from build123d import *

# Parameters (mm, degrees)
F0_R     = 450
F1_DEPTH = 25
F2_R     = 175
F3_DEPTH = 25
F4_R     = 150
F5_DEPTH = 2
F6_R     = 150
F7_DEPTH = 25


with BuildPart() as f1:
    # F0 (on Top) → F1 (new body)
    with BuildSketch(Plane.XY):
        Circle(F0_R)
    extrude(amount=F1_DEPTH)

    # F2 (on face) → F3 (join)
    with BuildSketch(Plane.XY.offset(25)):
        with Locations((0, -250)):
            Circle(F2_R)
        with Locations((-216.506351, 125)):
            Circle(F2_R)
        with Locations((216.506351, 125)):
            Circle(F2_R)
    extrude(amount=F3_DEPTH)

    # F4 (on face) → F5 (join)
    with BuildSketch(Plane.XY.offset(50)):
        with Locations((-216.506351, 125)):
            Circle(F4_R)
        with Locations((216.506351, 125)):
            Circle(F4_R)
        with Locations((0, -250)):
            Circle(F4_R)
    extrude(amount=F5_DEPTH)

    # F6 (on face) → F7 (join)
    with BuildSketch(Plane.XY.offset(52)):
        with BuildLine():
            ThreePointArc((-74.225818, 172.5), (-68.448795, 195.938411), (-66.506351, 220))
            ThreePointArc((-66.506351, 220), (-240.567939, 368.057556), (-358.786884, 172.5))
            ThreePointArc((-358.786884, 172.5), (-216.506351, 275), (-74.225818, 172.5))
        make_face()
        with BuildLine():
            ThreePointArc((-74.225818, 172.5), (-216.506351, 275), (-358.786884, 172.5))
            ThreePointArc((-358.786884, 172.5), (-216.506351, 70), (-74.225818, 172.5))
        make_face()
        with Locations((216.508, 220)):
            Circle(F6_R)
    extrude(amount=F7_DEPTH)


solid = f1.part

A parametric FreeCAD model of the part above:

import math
import FreeCAD as App
import Part
import Sketcher
Q = App.Units.Quantity

doc = App.newDocument("Part")
body = doc.addObject("PartDesign::Body", "Body")

sketch1 = body.newObject("Sketcher::SketchObject", "Sketch")
sketch1.AttachmentSupport = (doc.getObject("XY_Plane"), [""])
sketch1.MapMode = "FlatFace"
sketch1.addGeometry(Part.Circle(App.Vector(0, 0, 0), App.Vector(0, 0, 1), 450), False)
sketch1.addConstraint(Sketcher.Constraint("Coincident", 0, 3, -1, 1))
sketch1.addConstraint(Sketcher.Constraint("Diameter", 0, Q("900 mm")))
pad1 = body.newObject("PartDesign::Pad", "Pad")
pad1.Profile = sketch1
pad1.Length = 25

sketch2 = body.newObject("Sketcher::SketchObject", "Sketch001")
sketch2.AttachmentSupport = (doc.getObject("XY_Plane"), [""])
sketch2.MapMode = "FlatFace"
sketch2.AttachmentOffset = App.Placement(App.Vector(0, 0, 25), App.Rotation())
sketch2.addGeometry(Part.Circle(App.Vector(0, -250, 0), App.Vector(0, 0, 1), 175), False)
sketch2.addGeometry(Part.Circle(App.Vector(-217, 125, 0), App.Vector(0, 0, 1), 175), False)
sketch2.addGeometry(Part.Circle(App.Vector(217, 125, 0), App.Vector(0, 0, 1), 175), False)
sketch2.addConstraint(Sketcher.Constraint("Equal", 0, 1))
sketch2.addConstraint(Sketcher.Constraint("Equal", 1, 2))
sketch2.addConstraint(Sketcher.Constraint("Symmetric", 1, 3, 2, 3, -2))
sketch2.addConstraint(Sketcher.Constraint("PointOnObject", 0, 3, -2))
sketch2.addConstraint(Sketcher.Constraint("Diameter", 0, Q("350 mm")))
sketch2.addConstraint(Sketcher.Constraint("DistanceY", 0, 3, -1, 1, Q("250 mm")))
sketch2.addConstraint(Sketcher.Constraint("DistanceY", -1, 1, 1, 3, Q("125 mm")))
sketch2.addConstraint(Sketcher.Constraint("DistanceX", 1, 3, 2, 3, Q("433.012702 mm")))
pad2 = body.newObject("PartDesign::Pad", "Pad001")
pad2.Profile = sketch2
pad2.Length = 25

sketch3 = body.newObject("Sketcher::SketchObject", "Sketch002")
sketch3.AttachmentSupport = (doc.getObject("XY_Plane"), [""])
sketch3.MapMode = "FlatFace"
sketch3.AttachmentOffset = App.Placement(App.Vector(0, 0, 50), App.Rotation())
sketch3.addGeometry(Part.Circle(App.Vector(-217, 125, 0), App.Vector(0, 0, 1), 150), False)
sketch3.addGeometry(Part.Circle(App.Vector(217, 125, 0), App.Vector(0, 0, 1), 150), False)
sketch3.addGeometry(Part.Circle(App.Vector(0, -250, 0), App.Vector(0, 0, 1), 150), False)
sketch3.addConstraint(Sketcher.Constraint("Equal", 0, 1))
sketch3.addConstraint(Sketcher.Constraint("Equal", 1, 2))
sketch3.addConstraint(Sketcher.Constraint("Symmetric", 0, 3, 1, 3, -2))
sketch3.addConstraint(Sketcher.Constraint("PointOnObject", 2, 3, -2))
sketch3.addConstraint(Sketcher.Constraint("Diameter", 0, Q("300 mm")))
sketch3.addConstraint(Sketcher.Constraint("DistanceY", -1, 1, 0, 3, Q("125 mm")))
sketch3.addConstraint(Sketcher.Constraint("DistanceY", 2, 3, -1, 1, Q("250 mm")))
sketch3.addConstraint(Sketcher.Constraint("DistanceX", 0, 3, 1, 3, Q("433.012702 mm")))
pad3 = body.newObject("PartDesign::Pad", "Pad002")
pad3.Profile = sketch3
pad3.Length = 2

sketch4 = body.newObject("Sketcher::SketchObject", "Sketch003")
sketch4.AttachmentSupport = (doc.getObject("XY_Plane"), [""])
sketch4.MapMode = "FlatFace"
sketch4.AttachmentOffset = App.Placement(App.Vector(0, 0, 52), App.Rotation())
sketch4.addGeometry(Part.ArcOfCircle(Part.Circle(App.Vector(-216.506372, 220.000003, 0), App.Vector(0, 0, 1), 150.000021), math.radians(-18.461457), math.radians(-0.000001)), False)
sketch4.addGeometry(Part.ArcOfCircle(Part.Circle(App.Vector(-216.506351, 220, 0), App.Vector(0, 0, 1), 150), math.radians(0), math.radians(198.461458)), False)
sketch4.addGeometry(Part.ArcOfCircle(Part.Circle(App.Vector(-216.506351, 220, 0), App.Vector(0, 0, 1), 150), math.radians(-161.538542), math.radians(-18.461458)), False)
sketch4.addGeometry(Part.Circle(App.Vector(216.508, 220, 0), App.Vector(0, 0, 1), 150), False)
sketch4.addConstraint(Sketcher.Constraint("Coincident", 0, 2, 1, 1))
sketch4.addConstraint(Sketcher.Constraint("Coincident", 1, 2, 2, 1))
sketch4.addConstraint(Sketcher.Constraint("Coincident", 2, 2, 0, 1))
sketch4.addConstraint(Sketcher.Constraint("Coincident", 2, 3, 1, 3))
sketch4.addConstraint(Sketcher.Constraint("Diameter", 3, Q("300 mm")))
sketch4.addConstraint(Sketcher.Constraint("Radius", 1, Q("150 mm")))
sketch4.addConstraint(Sketcher.Constraint("DistanceY", -1, 1, 1, 3, Q("220 mm")))
sketch4.addConstraint(Sketcher.Constraint("DistanceY", -1, 1, 3, 3, Q("220 mm")))
sketch4.addConstraint(Sketcher.Constraint("DistanceY", -1, 1, 0, 2, Q("220 mm")))
sketch4.addConstraint(Sketcher.Constraint("DistanceY", -1, 1, 1, 2, Q("172.5 mm")))
sketch4.addConstraint(Sketcher.Constraint("DistanceY", -1, 1, 2, 2, Q("172.5 mm")))
sketch4.addConstraint(Sketcher.Constraint("Radius", 0, Q("150.000021 mm")))
sketch4.addConstraint(Sketcher.Constraint("DistanceX", -1, 1, 3, 3, Q("216.508 mm")))
sketch4.addConstraint(Sketcher.Constraint("DistanceX", 0, 3, -1, 1, Q("216.506372 mm")))
pad4 = body.newObject("PartDesign::Pad", "Pad003")
pad4.Profile = sketch4
pad4.Length = 25

doc.recompute()
